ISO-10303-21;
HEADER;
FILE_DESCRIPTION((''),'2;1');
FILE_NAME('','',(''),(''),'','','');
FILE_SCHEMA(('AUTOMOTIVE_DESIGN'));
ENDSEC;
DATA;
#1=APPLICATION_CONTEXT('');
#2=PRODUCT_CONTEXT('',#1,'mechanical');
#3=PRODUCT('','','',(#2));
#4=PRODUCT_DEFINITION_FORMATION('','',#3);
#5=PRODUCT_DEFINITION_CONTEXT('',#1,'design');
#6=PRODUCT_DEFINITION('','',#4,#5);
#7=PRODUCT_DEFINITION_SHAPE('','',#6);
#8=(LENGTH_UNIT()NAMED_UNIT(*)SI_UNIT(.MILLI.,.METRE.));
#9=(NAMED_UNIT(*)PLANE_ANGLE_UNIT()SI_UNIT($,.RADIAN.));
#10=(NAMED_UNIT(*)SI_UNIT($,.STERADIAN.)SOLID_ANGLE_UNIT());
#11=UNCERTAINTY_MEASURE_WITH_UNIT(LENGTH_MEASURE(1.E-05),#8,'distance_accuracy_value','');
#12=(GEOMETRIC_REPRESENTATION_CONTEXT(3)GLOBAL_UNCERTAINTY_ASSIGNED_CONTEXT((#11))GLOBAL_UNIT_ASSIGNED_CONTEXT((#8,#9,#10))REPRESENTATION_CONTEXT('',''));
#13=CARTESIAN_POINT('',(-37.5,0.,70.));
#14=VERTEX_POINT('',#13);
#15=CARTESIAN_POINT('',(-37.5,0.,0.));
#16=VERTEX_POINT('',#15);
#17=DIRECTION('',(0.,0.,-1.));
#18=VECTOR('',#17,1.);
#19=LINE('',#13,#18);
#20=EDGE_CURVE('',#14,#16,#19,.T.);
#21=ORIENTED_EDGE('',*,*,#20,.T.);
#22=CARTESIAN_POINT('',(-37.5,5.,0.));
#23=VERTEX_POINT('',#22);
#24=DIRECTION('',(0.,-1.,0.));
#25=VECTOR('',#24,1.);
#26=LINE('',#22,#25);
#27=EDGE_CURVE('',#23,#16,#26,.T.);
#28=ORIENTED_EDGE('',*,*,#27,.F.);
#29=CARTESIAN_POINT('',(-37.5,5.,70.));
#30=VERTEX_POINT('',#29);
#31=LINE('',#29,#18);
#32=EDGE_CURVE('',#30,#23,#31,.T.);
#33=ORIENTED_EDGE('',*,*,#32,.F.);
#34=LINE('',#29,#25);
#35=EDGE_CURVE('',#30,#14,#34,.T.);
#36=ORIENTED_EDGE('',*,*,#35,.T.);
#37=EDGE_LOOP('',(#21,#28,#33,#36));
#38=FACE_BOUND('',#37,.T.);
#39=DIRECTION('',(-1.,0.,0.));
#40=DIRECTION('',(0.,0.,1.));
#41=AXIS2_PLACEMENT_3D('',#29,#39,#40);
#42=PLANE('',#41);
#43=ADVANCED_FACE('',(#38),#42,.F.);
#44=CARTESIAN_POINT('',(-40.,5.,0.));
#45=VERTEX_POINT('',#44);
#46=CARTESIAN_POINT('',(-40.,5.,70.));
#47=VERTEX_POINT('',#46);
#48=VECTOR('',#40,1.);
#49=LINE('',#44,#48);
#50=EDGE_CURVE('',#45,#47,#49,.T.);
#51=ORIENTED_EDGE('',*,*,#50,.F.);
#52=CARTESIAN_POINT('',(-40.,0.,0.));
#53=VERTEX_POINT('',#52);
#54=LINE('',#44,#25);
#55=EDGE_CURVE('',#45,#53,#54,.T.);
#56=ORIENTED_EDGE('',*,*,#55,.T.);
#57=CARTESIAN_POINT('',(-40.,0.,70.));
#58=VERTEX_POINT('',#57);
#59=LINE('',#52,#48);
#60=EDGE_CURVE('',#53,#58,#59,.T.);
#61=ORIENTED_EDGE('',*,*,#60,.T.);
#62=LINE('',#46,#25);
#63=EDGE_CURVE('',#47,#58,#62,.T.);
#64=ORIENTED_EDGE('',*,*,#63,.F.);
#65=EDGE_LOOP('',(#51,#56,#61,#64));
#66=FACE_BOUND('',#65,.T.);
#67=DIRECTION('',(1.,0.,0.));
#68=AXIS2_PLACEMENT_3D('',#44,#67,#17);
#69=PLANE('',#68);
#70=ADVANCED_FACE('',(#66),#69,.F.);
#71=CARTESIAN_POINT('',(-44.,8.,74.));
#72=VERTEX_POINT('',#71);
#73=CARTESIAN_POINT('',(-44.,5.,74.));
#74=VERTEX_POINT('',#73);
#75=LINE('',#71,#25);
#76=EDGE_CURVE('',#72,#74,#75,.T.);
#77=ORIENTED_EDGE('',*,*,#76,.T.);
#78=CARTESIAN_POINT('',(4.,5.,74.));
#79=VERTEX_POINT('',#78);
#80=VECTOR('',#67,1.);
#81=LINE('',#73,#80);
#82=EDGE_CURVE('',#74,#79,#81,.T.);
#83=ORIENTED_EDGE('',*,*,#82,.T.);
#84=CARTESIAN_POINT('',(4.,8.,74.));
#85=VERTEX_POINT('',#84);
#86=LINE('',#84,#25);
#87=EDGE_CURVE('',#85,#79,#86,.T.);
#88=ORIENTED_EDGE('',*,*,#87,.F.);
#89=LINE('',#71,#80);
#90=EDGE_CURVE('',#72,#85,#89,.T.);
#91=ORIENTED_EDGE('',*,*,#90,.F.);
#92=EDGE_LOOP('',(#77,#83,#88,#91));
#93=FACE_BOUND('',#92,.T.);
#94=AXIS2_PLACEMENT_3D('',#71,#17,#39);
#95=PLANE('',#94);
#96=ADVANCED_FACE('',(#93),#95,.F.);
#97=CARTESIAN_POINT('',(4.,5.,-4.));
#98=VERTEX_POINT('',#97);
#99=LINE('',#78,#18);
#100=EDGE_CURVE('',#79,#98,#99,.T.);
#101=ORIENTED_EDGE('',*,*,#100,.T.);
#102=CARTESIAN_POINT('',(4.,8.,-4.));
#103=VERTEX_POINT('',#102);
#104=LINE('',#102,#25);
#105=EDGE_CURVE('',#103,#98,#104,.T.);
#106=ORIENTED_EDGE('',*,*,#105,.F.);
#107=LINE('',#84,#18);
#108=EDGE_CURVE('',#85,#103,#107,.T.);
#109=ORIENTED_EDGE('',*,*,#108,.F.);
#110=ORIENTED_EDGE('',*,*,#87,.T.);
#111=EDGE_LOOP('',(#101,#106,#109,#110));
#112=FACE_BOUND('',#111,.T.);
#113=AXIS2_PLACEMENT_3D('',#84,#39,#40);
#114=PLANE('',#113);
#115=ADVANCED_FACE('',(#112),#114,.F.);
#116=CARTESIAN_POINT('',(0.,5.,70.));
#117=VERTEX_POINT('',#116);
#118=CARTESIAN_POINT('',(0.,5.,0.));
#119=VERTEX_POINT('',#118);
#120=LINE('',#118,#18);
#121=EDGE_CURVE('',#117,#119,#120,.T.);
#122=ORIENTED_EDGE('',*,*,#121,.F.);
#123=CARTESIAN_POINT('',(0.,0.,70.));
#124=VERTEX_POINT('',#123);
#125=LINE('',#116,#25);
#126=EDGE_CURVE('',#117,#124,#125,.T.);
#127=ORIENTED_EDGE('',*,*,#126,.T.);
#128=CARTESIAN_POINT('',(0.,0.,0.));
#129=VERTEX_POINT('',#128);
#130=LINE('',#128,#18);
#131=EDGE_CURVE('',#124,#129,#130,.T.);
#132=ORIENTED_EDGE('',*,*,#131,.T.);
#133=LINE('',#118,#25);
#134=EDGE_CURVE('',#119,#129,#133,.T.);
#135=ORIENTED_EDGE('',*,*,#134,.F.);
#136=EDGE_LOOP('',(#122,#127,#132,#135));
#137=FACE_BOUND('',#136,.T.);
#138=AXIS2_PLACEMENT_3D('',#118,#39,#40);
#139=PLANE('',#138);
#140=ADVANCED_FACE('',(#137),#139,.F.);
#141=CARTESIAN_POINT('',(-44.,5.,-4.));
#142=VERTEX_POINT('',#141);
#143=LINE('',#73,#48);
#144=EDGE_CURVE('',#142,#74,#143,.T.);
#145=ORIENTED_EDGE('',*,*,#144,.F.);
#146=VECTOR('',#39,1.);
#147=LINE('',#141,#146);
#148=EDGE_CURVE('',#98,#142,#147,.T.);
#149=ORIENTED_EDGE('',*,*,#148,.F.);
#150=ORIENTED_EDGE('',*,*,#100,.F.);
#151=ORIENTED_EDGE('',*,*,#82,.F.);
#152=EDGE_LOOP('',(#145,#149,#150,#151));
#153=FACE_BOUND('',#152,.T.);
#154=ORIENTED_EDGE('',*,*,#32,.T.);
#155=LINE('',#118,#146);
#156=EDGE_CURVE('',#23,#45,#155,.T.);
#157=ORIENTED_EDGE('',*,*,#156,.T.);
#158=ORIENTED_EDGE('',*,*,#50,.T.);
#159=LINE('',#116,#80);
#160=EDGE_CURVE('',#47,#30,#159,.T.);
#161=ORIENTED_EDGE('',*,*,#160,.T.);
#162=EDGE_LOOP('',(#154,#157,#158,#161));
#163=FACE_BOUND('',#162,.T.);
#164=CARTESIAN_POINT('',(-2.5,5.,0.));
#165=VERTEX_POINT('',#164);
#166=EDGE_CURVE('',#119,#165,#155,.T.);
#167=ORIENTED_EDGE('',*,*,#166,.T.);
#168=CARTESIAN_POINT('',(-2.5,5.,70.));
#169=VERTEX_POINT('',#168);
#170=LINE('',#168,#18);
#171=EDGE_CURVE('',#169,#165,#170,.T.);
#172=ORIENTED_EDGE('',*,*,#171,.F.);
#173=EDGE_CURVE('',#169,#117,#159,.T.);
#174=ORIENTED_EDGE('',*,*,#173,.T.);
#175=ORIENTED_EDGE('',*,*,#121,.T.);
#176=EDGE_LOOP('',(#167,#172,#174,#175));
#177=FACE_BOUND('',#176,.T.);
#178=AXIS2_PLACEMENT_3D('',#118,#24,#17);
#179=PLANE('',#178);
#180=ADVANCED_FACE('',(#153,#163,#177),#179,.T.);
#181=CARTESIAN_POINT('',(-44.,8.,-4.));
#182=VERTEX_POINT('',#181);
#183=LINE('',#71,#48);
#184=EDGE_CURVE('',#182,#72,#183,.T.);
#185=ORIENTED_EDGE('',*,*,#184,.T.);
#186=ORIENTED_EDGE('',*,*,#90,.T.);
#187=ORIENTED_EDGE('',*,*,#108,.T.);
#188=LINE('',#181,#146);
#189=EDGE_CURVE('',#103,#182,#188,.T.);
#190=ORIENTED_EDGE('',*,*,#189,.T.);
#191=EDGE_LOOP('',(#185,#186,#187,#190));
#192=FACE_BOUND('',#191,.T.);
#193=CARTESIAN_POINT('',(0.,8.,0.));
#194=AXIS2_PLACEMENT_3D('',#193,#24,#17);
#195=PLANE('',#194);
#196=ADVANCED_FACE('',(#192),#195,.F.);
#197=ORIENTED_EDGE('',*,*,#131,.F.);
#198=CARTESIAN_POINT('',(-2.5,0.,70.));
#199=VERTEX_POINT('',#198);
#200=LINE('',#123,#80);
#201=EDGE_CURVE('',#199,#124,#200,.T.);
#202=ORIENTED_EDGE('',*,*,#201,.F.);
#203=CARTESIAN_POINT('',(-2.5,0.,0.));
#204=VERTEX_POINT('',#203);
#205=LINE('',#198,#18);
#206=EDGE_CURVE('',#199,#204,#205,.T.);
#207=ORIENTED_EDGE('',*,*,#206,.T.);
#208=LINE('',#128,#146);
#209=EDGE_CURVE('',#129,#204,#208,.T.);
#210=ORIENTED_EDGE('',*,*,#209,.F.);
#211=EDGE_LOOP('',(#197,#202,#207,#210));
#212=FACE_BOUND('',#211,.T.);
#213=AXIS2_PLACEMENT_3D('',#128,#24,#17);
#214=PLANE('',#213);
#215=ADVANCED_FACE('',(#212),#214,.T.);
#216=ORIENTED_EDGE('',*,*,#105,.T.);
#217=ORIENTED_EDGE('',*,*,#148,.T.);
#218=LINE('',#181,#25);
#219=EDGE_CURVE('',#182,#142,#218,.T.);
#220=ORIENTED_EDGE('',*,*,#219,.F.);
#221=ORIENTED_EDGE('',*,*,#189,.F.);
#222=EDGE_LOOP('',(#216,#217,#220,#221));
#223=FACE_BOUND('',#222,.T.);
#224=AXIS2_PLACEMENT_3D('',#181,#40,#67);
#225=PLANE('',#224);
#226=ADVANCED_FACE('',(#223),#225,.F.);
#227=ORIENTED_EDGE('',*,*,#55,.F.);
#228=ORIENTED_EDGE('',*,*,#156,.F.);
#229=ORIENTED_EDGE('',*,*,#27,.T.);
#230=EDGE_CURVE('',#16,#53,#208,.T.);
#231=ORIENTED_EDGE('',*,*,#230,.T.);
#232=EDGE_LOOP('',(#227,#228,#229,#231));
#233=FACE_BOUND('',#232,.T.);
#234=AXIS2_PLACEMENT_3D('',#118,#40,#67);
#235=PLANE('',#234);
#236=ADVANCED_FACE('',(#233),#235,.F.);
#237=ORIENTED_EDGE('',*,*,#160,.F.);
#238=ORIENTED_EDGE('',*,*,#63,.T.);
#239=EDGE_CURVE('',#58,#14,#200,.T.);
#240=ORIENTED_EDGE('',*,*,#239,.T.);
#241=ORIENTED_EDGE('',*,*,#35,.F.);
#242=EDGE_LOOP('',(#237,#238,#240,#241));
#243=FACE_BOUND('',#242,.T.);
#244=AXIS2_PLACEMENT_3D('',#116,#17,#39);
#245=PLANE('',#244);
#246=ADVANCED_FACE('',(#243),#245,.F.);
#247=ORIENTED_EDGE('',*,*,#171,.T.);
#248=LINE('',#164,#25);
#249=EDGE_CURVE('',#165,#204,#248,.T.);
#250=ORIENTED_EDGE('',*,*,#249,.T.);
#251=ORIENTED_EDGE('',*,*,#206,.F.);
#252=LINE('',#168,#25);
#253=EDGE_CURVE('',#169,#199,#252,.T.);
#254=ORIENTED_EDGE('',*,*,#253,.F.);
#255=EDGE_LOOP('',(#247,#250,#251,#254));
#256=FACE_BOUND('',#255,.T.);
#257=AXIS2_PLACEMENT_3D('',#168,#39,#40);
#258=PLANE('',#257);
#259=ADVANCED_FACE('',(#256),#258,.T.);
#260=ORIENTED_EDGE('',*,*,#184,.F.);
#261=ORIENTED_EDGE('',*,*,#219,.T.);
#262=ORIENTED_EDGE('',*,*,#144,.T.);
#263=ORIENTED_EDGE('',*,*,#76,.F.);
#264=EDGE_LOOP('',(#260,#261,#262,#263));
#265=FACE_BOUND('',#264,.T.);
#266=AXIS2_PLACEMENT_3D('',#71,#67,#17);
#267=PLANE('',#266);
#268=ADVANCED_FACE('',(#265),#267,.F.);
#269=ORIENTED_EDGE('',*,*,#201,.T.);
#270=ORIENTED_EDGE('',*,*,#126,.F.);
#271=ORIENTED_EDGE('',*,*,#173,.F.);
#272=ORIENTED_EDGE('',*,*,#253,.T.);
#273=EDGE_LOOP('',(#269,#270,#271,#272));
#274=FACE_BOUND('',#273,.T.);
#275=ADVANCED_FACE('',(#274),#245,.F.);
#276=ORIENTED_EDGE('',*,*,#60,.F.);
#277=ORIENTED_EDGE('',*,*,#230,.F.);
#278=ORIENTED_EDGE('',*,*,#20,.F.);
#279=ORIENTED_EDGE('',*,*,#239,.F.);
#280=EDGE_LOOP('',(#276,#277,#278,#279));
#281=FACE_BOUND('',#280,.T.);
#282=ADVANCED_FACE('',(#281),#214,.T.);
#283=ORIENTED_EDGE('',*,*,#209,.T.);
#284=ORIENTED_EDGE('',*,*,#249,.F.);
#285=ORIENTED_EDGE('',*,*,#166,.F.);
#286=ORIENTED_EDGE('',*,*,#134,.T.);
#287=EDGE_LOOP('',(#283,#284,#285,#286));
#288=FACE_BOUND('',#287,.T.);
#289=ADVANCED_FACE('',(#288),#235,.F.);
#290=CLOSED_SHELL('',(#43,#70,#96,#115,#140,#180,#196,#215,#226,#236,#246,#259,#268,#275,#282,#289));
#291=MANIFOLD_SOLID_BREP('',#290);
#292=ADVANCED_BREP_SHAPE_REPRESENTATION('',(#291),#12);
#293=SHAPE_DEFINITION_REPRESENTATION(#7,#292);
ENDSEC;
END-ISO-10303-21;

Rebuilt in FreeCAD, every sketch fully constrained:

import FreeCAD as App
import Part
import Sketcher

V = App.Vector


def add_polygon(sketch, points):
    """Adds a closed chain of lines whose ends are joined by coincident constraints."""
    first, n = sketch.GeometryCount, len(points)
    for a, b in zip(points, points[1:] + points[:1]):
        sketch.addGeometry(Part.LineSegment(App.Vector(*a, 0), App.Vector(*b, 0)), False)
    for i in range(n):
        sketch.addConstraint(Sketcher.Constraint("Coincident", first + i, 2, first + (i + 1) % n, 1))

doc = App.newDocument("Part")
body = doc.addObject("PartDesign::Body", "Body")

sketch1 = doc.addObject("Sketcher::SketchObject", "Sketch")
body.addObject(sketch1)
sketch1.AttachmentSupport = (doc.XZ_Plane, [""])
sketch1.MapMode = "FlatFace"
add_polygon(sketch1, [(-40, 0), (-40, 70), (0, 70), (0, 0)])
sketch1.addConstraint([
    Sketcher.Constraint("Vertical", 0),
    Sketcher.Constraint("Horizontal", 1),
    Sketcher.Constraint("Vertical", 2),
    Sketcher.Constraint("Horizontal", 3),
    Sketcher.Constraint("Coincident", 2, 2, -1, 1),
    Sketcher.Constraint("DistanceX", 1, 1, 1, 2, 40.0),
    Sketcher.Constraint("DistanceY", 0, 1, 0, 2, 70.0),
])
pad1 = doc.addObject("PartDesign::Pad", "Pad")
body.addObject(pad1)
pad1.Profile = sketch1
pad1.Length = 5
pad1.Reversed = True

sketch2 = doc.addObject("Sketcher::SketchObject", "Sketch001")
body.addObject(sketch2)
sketch2.AttachmentSupport = (doc.XZ_Plane, [""])
sketch2.MapMode = "FlatFace"
sketch2.AttachmentOffset = App.Placement(V(0, 0, -5), App.Rotation())
add_polygon(sketch2, [(-44, -4), (-44, 74), (4, 74), (4, -4)])
sketch2.addConstraint([
    Sketcher.Constraint("Vertical", 0),
    Sketcher.Constraint("Horizontal", 1),
    Sketcher.Constraint("Vertical", 2),
    Sketcher.Constraint("Horizontal", 3),
    Sketcher.Constraint("DistanceX", 1, 1, 1, 2, 48.0),
    Sketcher.Constraint("DistanceY", 0, 1, 0, 2, 78.0),
    Sketcher.Constraint("DistanceX", 0, 2, -1, 1, 44.0),
    Sketcher.Constraint("DistanceY", -1, 1, 0, 2, 74.0),
])
pad2 = doc.addObject("PartDesign::Pad", "Pad001")
body.addObject(pad2)
pad2.Profile = sketch2
pad2.Length = 3
pad2.Reversed = True

sketch3 = doc.addObject("Sketcher::SketchObject", "Sketch002")
body.addObject(sketch3)
sketch3.AttachmentSupport = (doc.XZ_Plane, [""])
sketch3.MapMode = "FlatFace"
add_polygon(sketch3, [(-37.5, 70), (-37.5, 0), (-2.5, 0), (-2.5, 70)])
sketch3.addConstraint([
    Sketcher.Constraint("Vertical", 0),
    Sketcher.Constraint("Horizontal", 1),
    Sketcher.Constraint("Vertical", 2),
    Sketcher.Constraint("Horizontal", 3),
    Sketcher.Constraint("PointOnObject", 0, 2, -1),
    Sketcher.Constraint("DistanceX", 1, 1, 1, 2, 35.0),
    Sketcher.Constraint("DistanceY", 0, 2, 0, 1, 70.0),
    Sketcher.Constraint("DistanceX", 0, 2, -1, 1, 37.5),
])
pocket1 = doc.addObject("PartDesign::Pocket", "Pocket")
body.addObject(pocket1)
pocket1.Profile = sketch3
pocket1.Length = 5

doc.recompute()
